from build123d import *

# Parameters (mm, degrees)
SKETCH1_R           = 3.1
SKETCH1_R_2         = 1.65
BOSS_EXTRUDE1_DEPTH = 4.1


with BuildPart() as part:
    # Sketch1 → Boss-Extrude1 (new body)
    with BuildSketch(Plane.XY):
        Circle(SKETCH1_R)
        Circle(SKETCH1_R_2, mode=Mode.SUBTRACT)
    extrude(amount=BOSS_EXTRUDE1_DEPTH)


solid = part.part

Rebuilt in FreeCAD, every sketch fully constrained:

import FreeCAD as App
import Part
import Sketcher

V = App.Vector
Q = App.Units.Quantity

doc = App.newDocument("Part")
body = doc.addObject("PartDesign::Body", "Body")

# Sketch on XY plane
sketch1 = body.newObject("Sketcher::SketchObject", "Sketch")
sketch1.AttachmentSupport = (doc.getObject("XY_Plane"), [""])
sketch1.MapMode = "FlatFace"
sketch1.addGeometry(Part.Circle(V(0, 0, 0), V(0, 0, 1), 3.1), False)
sketch1.addGeometry(Part.Circle(V(0, 0, 0), V(0, 0, 1), 1.6), False)
sketch1.addConstraint(Sketcher.Constraint("Coincident", 0, 3, -1, 1))
sketch1.addConstraint(Sketcher.Constraint("Coincident", 1, 3, -1, 1))
sketch1.addConstraint(Sketcher.Constraint("Diameter", 0, Q("6.2 mm")))
sketch1.addConstraint(Sketcher.Constraint("Diameter", 1, Q("3.3 mm")))
pad1 = body.newObject("PartDesign::Pad", "Pad")
pad1.Profile = sketch1
pad1.Length = 4.1

doc.recompute()
